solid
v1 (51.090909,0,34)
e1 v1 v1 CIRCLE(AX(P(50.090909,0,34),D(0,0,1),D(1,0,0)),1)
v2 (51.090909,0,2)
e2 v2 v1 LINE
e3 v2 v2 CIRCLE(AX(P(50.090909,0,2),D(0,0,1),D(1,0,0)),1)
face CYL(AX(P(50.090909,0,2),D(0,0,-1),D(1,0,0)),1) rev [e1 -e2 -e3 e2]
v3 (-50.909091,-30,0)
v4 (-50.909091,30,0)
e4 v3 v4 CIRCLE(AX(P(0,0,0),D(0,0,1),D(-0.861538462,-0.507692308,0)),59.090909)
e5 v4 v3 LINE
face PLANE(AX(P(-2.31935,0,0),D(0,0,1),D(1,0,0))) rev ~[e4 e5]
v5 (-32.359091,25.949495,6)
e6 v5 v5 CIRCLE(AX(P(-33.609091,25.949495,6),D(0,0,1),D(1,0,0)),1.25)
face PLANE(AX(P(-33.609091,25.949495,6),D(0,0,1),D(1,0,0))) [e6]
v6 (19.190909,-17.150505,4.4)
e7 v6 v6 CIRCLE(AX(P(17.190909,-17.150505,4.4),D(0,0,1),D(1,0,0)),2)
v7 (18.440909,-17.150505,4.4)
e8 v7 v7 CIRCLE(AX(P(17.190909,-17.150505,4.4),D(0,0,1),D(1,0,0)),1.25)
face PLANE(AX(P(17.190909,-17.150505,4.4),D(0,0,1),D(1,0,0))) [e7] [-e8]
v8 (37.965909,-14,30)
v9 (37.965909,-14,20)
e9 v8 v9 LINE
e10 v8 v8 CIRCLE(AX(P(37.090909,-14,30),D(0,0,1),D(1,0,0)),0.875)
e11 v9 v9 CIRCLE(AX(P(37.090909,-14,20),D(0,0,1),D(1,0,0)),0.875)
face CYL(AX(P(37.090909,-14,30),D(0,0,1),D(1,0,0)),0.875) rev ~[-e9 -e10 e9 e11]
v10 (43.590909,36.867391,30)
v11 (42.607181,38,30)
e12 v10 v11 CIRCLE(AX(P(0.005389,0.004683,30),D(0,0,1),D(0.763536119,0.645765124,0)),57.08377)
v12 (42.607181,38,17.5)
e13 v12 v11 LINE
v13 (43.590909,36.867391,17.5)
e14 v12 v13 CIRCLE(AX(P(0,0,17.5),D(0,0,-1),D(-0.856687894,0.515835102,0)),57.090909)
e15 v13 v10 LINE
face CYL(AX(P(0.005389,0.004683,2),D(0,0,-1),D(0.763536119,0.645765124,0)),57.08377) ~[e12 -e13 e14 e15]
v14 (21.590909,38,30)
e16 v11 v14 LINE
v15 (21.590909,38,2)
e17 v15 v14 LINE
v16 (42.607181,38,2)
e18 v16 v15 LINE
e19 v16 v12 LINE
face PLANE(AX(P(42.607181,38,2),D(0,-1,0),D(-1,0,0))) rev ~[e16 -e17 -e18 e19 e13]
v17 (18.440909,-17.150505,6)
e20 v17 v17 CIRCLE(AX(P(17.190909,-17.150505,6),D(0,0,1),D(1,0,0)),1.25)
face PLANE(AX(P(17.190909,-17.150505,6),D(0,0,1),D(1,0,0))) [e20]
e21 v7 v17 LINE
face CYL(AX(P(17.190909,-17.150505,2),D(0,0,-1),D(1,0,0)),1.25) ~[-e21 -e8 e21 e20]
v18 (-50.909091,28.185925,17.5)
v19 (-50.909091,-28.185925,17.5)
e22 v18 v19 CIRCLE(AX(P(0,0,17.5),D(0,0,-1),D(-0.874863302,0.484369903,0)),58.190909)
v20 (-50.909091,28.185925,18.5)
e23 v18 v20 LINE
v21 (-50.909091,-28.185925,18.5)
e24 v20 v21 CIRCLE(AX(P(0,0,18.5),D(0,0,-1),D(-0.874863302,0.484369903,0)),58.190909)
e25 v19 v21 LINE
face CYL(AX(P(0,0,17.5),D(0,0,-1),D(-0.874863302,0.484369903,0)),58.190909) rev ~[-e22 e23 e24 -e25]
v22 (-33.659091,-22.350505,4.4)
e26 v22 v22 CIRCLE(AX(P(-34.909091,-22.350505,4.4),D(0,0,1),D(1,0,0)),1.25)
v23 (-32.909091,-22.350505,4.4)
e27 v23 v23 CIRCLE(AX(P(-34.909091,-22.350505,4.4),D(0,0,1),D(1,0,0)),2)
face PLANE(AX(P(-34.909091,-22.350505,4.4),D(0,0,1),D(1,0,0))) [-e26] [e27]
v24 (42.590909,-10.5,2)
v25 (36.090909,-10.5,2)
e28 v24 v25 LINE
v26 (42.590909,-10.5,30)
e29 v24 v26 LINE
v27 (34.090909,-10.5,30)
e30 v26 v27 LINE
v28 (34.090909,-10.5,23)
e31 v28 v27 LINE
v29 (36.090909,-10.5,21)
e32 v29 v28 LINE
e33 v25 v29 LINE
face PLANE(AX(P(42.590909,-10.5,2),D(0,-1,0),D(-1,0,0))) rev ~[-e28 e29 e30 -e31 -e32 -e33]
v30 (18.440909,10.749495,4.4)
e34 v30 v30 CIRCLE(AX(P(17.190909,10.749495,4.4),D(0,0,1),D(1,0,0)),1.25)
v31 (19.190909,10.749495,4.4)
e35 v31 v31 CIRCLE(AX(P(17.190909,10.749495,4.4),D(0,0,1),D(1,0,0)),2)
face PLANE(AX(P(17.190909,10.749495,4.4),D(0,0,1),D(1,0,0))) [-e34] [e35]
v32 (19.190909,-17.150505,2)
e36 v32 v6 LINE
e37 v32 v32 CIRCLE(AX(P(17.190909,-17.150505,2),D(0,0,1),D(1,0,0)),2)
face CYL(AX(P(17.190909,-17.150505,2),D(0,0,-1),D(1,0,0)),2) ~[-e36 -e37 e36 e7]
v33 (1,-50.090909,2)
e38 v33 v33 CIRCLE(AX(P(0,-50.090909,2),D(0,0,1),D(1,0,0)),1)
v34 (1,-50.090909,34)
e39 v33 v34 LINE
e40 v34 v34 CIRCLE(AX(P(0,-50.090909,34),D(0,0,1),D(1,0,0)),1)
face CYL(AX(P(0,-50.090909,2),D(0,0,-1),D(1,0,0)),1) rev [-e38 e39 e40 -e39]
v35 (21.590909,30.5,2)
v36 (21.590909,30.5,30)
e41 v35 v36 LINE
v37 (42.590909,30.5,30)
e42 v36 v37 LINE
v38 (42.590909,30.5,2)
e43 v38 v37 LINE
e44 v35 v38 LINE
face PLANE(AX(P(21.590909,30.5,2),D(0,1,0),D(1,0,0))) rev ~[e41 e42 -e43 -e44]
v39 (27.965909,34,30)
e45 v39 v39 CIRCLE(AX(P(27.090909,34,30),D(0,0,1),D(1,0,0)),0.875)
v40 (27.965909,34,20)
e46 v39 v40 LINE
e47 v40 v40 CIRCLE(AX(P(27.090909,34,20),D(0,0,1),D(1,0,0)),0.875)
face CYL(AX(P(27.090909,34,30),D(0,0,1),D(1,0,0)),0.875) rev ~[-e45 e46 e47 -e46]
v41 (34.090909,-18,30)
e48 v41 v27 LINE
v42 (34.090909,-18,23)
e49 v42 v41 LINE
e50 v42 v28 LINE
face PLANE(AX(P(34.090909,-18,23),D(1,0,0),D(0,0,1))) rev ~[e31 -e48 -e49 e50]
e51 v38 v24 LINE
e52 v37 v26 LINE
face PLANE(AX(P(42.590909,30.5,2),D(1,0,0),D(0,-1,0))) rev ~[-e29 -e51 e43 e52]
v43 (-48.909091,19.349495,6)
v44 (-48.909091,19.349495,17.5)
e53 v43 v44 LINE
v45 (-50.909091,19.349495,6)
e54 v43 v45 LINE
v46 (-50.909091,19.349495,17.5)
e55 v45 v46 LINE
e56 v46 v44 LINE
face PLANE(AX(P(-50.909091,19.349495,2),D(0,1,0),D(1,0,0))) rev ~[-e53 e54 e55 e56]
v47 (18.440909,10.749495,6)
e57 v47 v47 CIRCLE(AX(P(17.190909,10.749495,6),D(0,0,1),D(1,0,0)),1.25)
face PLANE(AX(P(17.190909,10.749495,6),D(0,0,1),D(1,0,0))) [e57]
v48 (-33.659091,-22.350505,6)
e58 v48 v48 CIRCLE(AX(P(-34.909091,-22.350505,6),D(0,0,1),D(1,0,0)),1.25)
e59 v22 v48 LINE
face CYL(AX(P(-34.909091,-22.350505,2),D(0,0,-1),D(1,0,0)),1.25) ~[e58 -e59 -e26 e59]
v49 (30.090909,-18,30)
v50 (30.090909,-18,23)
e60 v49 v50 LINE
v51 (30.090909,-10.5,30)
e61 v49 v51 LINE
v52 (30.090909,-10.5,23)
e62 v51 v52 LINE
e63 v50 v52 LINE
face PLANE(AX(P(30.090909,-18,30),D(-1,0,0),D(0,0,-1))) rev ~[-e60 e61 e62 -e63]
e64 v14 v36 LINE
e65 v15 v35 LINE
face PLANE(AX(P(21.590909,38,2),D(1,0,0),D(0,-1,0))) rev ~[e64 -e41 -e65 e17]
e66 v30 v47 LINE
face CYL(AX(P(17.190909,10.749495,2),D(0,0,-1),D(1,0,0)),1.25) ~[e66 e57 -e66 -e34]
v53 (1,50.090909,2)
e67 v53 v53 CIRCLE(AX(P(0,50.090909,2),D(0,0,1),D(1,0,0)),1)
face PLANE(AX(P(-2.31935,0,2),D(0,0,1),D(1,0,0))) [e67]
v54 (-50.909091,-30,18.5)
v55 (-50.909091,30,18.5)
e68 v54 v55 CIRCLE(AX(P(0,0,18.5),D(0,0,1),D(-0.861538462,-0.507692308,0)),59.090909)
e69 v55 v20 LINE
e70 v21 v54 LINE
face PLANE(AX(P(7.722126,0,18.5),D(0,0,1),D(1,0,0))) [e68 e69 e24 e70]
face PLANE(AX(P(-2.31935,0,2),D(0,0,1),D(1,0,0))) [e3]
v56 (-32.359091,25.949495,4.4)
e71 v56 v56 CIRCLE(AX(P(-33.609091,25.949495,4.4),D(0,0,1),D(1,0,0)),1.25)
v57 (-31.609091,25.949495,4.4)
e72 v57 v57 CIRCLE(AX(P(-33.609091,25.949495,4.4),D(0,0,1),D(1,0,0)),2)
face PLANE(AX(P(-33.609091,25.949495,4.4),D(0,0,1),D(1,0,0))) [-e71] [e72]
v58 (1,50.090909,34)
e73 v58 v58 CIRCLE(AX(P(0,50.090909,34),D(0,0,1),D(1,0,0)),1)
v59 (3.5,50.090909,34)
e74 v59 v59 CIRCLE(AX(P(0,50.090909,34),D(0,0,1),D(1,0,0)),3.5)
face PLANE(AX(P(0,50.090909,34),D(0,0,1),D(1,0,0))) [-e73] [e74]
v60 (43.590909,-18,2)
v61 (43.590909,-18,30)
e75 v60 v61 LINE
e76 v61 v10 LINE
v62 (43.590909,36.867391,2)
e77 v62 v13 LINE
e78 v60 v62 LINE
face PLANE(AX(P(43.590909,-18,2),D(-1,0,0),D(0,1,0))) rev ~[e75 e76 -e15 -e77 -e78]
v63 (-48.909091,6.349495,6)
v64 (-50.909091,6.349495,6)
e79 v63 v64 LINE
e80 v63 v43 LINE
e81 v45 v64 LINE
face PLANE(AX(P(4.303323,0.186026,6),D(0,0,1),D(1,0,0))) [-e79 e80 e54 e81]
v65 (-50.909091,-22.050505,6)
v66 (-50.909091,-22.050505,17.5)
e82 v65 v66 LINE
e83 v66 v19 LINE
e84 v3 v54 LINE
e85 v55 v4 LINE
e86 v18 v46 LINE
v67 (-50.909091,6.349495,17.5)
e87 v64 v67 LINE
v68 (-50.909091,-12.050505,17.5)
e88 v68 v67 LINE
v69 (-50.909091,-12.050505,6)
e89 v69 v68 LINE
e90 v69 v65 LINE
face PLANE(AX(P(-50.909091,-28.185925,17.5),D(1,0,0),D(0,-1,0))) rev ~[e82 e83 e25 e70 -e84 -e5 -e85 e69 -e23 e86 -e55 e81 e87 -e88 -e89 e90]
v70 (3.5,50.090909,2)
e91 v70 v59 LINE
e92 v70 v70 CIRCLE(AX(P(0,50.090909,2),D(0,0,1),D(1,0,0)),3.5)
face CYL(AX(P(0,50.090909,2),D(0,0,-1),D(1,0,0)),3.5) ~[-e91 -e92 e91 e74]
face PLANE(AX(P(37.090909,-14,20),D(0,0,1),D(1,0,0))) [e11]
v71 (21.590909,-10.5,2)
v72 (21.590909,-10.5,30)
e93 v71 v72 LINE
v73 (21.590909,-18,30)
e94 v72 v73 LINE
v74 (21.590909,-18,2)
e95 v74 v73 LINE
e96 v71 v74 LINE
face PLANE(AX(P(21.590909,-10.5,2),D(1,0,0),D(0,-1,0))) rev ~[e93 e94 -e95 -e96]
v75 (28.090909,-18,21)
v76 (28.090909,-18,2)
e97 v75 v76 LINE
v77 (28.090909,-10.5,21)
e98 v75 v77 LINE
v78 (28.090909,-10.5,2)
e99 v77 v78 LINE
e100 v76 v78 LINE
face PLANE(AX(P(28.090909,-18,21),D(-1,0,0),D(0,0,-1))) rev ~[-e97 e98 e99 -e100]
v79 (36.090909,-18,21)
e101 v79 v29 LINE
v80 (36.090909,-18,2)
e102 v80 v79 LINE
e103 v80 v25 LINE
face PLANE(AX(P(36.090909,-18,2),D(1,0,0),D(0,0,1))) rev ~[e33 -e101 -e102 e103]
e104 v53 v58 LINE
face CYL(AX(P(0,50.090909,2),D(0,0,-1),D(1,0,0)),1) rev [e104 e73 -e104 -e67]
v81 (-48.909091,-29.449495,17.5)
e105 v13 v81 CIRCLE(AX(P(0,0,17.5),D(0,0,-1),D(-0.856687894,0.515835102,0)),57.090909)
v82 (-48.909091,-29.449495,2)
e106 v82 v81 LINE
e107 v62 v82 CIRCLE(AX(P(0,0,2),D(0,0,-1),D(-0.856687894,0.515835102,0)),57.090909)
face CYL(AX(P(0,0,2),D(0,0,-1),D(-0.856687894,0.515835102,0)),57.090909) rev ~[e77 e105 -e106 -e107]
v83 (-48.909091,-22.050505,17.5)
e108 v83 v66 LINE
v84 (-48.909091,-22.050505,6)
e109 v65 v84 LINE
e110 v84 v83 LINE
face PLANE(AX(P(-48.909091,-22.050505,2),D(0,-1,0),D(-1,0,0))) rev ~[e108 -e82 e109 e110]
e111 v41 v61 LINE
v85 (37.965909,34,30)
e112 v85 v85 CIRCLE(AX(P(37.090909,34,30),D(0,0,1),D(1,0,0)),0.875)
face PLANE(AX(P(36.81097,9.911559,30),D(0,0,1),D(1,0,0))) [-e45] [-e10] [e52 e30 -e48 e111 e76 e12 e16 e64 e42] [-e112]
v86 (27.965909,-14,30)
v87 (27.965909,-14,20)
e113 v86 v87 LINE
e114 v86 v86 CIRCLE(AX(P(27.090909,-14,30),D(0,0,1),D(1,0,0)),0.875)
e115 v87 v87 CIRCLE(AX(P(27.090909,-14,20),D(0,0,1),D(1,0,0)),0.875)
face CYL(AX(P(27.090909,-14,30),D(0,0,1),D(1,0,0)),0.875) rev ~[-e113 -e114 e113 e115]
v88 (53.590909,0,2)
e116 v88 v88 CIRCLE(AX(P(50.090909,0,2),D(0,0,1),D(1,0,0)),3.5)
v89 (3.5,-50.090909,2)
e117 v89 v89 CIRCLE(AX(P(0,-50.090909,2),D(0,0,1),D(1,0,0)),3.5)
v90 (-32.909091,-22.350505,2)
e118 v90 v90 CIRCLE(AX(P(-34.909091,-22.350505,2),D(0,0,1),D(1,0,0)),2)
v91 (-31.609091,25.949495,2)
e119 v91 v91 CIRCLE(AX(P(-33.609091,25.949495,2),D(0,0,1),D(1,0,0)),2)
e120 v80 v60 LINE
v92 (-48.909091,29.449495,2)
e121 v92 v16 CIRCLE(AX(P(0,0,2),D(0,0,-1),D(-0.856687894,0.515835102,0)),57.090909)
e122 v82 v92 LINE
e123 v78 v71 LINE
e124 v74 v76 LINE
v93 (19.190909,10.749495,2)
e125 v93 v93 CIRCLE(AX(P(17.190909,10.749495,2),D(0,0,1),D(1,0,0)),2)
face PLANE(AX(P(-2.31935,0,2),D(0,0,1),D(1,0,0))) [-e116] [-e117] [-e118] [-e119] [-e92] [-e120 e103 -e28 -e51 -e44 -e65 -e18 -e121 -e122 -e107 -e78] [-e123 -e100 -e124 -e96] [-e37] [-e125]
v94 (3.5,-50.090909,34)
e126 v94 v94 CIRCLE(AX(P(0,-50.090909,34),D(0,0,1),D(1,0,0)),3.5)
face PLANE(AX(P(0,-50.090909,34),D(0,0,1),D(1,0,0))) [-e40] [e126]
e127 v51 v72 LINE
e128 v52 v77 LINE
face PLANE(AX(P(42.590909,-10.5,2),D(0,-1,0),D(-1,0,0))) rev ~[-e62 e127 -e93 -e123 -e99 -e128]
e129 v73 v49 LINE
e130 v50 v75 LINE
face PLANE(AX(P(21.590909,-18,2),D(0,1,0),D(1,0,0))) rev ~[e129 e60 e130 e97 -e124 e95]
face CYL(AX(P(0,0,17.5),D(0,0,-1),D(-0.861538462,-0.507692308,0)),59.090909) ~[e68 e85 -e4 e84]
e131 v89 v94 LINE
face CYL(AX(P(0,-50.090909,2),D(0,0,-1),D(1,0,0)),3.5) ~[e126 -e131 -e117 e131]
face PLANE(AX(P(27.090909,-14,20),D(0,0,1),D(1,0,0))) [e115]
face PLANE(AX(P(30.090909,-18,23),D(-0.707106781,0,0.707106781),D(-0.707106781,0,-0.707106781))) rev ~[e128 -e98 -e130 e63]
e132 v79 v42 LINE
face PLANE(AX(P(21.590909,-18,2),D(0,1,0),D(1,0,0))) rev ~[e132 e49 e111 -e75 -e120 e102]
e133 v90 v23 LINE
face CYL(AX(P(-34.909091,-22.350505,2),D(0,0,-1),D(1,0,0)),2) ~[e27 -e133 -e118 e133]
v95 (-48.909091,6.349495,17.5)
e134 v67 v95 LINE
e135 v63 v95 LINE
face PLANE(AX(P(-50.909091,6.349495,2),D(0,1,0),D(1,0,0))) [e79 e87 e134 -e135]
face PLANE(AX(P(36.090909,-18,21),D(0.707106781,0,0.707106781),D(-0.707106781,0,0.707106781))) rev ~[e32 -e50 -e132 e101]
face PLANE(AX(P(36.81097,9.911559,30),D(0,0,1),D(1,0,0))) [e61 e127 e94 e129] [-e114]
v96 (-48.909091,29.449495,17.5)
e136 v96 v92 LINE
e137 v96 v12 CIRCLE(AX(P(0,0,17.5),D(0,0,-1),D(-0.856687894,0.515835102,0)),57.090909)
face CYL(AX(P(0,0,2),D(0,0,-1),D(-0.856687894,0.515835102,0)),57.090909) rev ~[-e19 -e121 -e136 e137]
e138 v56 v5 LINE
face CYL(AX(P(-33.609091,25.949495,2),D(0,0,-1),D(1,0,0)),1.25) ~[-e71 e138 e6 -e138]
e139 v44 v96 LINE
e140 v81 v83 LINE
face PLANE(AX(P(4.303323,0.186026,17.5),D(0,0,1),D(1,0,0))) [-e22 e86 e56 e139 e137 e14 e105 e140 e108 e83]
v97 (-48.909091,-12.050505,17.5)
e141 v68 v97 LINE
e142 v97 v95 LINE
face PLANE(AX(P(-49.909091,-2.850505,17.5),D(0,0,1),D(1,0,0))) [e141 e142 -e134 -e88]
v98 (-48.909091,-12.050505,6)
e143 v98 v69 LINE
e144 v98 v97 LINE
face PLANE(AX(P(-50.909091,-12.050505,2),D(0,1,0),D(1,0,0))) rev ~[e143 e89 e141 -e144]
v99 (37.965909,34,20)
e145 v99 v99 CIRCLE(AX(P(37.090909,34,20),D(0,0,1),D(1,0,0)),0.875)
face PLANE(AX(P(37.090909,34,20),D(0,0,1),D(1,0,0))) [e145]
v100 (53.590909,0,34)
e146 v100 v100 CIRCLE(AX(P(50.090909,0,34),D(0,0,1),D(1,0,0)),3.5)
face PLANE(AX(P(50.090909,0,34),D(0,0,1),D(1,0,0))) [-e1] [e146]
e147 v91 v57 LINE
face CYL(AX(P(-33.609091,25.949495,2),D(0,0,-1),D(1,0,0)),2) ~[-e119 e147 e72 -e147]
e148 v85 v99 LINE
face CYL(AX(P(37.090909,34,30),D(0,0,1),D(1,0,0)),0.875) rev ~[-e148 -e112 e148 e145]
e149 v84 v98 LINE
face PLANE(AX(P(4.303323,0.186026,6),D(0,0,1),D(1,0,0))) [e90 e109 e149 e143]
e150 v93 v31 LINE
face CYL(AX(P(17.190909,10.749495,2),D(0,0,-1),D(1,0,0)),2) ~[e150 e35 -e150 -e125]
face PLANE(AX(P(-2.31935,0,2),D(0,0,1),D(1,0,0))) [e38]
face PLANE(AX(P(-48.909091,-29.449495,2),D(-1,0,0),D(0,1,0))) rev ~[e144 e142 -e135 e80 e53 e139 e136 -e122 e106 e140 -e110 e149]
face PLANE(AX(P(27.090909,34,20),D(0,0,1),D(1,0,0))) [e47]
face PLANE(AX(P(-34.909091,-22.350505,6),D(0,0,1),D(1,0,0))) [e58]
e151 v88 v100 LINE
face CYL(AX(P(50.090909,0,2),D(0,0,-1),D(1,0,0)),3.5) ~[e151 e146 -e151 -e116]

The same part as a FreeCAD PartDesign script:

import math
import FreeCAD as App
import Part
import Sketcher
from FreeCAD import Vector

doc = App.newDocument("Part")
body = doc.addObject("PartDesign::Body", "Body")

sketch1 = body.newObject("Sketcher::SketchObject", "Sketch")
sketch1.AttachmentSupport = (doc.getObject("XY_Plane"), [""])
sketch1.MapMode = "FlatFace"
sketch1.addGeometry(Part.LineSegment(Vector(-50.909091, 30, 0), Vector(-50.909091, -30, 0)), False)
sketch1.addGeometry(Part.ArcOfCircle(Part.Circle(Vector(0, 0, 0), Vector(0, 0, 1), 59.090909), math.radians(-149.489763), math.radians(149.489763)), False)
sketch1.addConstraint(Sketcher.Constraint("Coincident", 0, 1, 1, 2))
sketch1.addConstraint(Sketcher.Constraint("Coincident", 1, 1, 0, 2))
sketch1.addConstraint(Sketcher.Constraint("Vertical", 0))
sketch1.addConstraint(Sketcher.Constraint("Coincident", 1, 3, -1, 1))
sketch1.addConstraint(Sketcher.Constraint("DistanceY", 0, 2, 0, 1, 60.0))
sketch1.addConstraint(Sketcher.Constraint("Radius", 1, 59.090909))
pad1 = body.newObject("PartDesign::Pad", "Pad")
pad1.Profile = sketch1
pad1.Length = 2

sketch2 = body.newObject("Sketcher::SketchObject", "Sketch001")
sketch2.AttachmentSupport = (doc.getObject("XY_Plane"), [""])
sketch2.MapMode = "FlatFace"
sketch2.AttachmentOffset = App.Placement(Vector(0, 0, 2), App.Rotation())
sketch2.addGeometry(Part.ArcOfCircle(Part.Circle(Vector(0, 0, 0), Vector(0, 0, 1), 59.090909), math.radians(-149.489763), math.radians(149.489763)), False)
sketch2.addGeometry(Part.LineSegment(Vector(-50.909091, 30, 0), Vector(-50.909091, -30, 0)), False)
sketch2.addGeometry(Part.ArcOfCircle(Part.Circle(Vector(0, 0, 0), Vector(0, 0, 1), 57.090909), math.radians(-148.946709), math.radians(148.946709)), False)
sketch2.addGeometry(Part.LineSegment(Vector(-48.909091, -29.449495, 0), Vector(-48.909091, 29.449495, 0)), False)
sketch2.addConstraint(Sketcher.Constraint("Coincident", 0, 1, 1, 2))
sketch2.addConstraint(Sketcher.Constraint("Coincident", 1, 1, 0, 2))
sketch2.addConstraint(Sketcher.Constraint("Coincident", 2, 1, 3, 1))
sketch2.addConstraint(Sketcher.Constraint("Coincident", 3, 2, 2, 2))
sketch2.addConstraint(Sketcher.Constraint("Vertical", 1))
sketch2.addConstraint(Sketcher.Constraint("Vertical", 3))
sketch2.addConstraint(Sketcher.Constraint("Coincident", 0, 3, -1, 1))
sketch2.addConstraint(Sketcher.Constraint("Coincident", 2, 3, -1, 1))
sketch2.addConstraint(Sketcher.Constraint("DistanceY", 1, 2, 1, 1, 60.0))
sketch2.addConstraint(Sketcher.Constraint("DistanceX", 0, 1, 2, 1, 2.0))
sketch2.addConstraint(Sketcher.Constraint("Radius", 0, 59.090909))
sketch2.addConstraint(Sketcher.Constraint("Radius", 2, 57.090909))
pad2 = body.newObject("PartDesign::Pad", "Pad001")
pad2.Profile = sketch2
pad2.Length = 4

sketch3 = body.newObject("Sketcher::SketchObject", "Sketch002")
sketch3.AttachmentSupport = (doc.getObject("XY_Plane"), [""])
sketch3.MapMode = "FlatFace"
sketch3.AttachmentOffset = App.Placement(Vector(0, 0, 2), App.Rotation())
sketch3.addGeometry(Part.Circle(Vector(-33.609091, 25.949495, 0), Vector(0, 0, 1), 1.25), False)
sketch3.addGeometry(Part.Circle(Vector(-34.909091, -22.350505, 0), Vector(0, 0, 1), 1.25), False)
sketch3.addGeometry(Part.Circle(Vector(17.190909, 10.749495, 0), Vector(0, 0, 1), 1.25), False)
sketch3.addGeometry(Part.Circle(Vector(17.190909, -17.150505, 0), Vector(0, 0, 1), 1.25), False)
sketch3.addConstraint(Sketcher.Constraint("Equal", 0, 1))
sketch3.addConstraint(Sketcher.Constraint("Equal", 1, 2))
sketch3.addConstraint(Sketcher.Constraint("Equal", 2, 3))
sketch3.addConstraint(Sketcher.Constraint("Vertical", 2, 3, 3, 3))
sketch3.addConstraint(Sketcher.Constraint("Diameter", 0, 2.5))
sketch3.addConstraint(Sketcher.Constraint("DistanceX", 1, 3, 0, 3, 1.3))
sketch3.addConstraint(Sketcher.Constraint("DistanceY", 1, 3, 0, 3, 48.3))
sketch3.addConstraint(Sketcher.Constraint("DistanceX", 0, 3, 2, 3, 50.8))
sketch3.addConstraint(Sketcher.Constraint("DistanceY", 2, 3, 0, 3, 15.2))
sketch3.addConstraint(Sketcher.Constraint("DistanceY", 3, 3, 2, 3, 27.9))
sketch3.addConstraint(Sketcher.Constraint("DistanceX", 0, 3, -1, 1, 33.609091))
sketch3.addConstraint(Sketcher.Constraint("DistanceY", -1, 1, 0, 3, 25.949495))
pad3 = body.newObject("PartDesign::Pad", "Pad002")
pad3.Profile = sketch3
pad3.Length = 4

sketch4 = body.newObject("Sketcher::SketchObject", "Sketch003")
sketch4.AttachmentSupport = (doc.getObject("XY_Plane"), [""])
sketch4.MapMode = "FlatFace"
sketch4.AttachmentOffset = App.Placement(Vector(0, 0, 2), App.Rotation())
sketch4.addGeometry(Part.Circle(Vector(-33.609091, 25.949495, 0), Vector(0, 0, 1), 2), False)
sketch4.addGeometry(Part.Circle(Vector(-33.609091, 25.949495, 0), Vector(0, 0, 1), 1.25), False)
sketch4.addGeometry(Part.Circle(Vector(-34.909091, -22.350505, 0), Vector(0, 0, 1), 2), False)
sketch4.addGeometry(Part.Circle(Vector(-34.909091, -22.350505, 0), Vector(0, 0, 1), 1.25), False)
sketch4.addGeometry(Part.Circle(Vector(17.190909, -17.150505, 0), Vector(0, 0, 1), 2), False)
sketch4.addGeometry(Part.Circle(Vector(17.190909, -17.150505, 0), Vector(0, 0, 1), 1.25), False)
sketch4.addGeometry(Part.Circle(Vector(17.190909, 10.749495, 0), Vector(0, 0, 1), 2), False)
sketch4.addGeometry(Part.Circle(Vector(17.190909, 10.749495, 0), Vector(0, 0, 1), 1.25), False)
sketch4.addConstraint(Sketcher.Constraint("Coincident", 1, 3, 0, 3))
sketch4.addConstraint(Sketcher.Constraint("Coincident", 3, 3, 2, 3))
sketch4.addConstraint(Sketcher.Constraint("Coincident", 5, 3, 4, 3))
sketch4.addConstraint(Sketcher.Constraint("Coincident", 7, 3, 6, 3))
sketch4.addConstraint(Sketcher.Constraint("Equal", 0, 2))
sketch4.addConstraint(Sketcher.Constraint("Equal", 1, 3))
sketch4.addConstraint(Sketcher.Constraint("Equal", 2, 4))
sketch4.addConstraint(Sketcher.Constraint("Equal", 3, 5))
sketch4.addConstraint(Sketcher.Constraint("Equal", 4, 6))
sketch4.addConstraint(Sketcher.Constraint("Equal", 5, 7))
sketch4.addConstraint(Sketcher.Constraint("Vertical", 5, 3, 6, 3))
sketch4.addConstraint(Sketcher.Constraint("Diameter", 0, 4.0))
sketch4.addConstraint(Sketcher.Constraint("Diameter", 1, 2.5))
sketch4.addConstraint(Sketcher.Constraint("DistanceX", 2, 3, 0, 3, 1.3))
sketch4.addConstraint(Sketcher.Constraint("DistanceY", 2, 3, 0, 3, 48.3))
sketch4.addConstraint(Sketcher.Constraint("DistanceX", 2, 3, 4, 3, 52.1))
sketch4.addConstraint(Sketcher.Constraint("DistanceY", 2, 3, 4, 3, 5.2))
sketch4.addConstraint(Sketcher.Constraint("DistanceY", 4, 3, 6, 3, 27.9))
sketch4.addConstraint(Sketcher.Constraint("DistanceX", 0, 3, -1, 1, 33.609091))
sketch4.addConstraint(Sketcher.Constraint("DistanceY", -1, 1, 0, 3, 25.949495))
pad4 = body.newObject("PartDesign::Pad", "Pad003")
pad4.Profile = sketch4
pad4.Length = 2.4

sketch5 = body.newObject("Sketcher::SketchObject", "Sketch004")
sketch5.AttachmentSupport = (doc.getObject("XY_Plane"), [""])
sketch5.MapMode = "FlatFace"
sketch5.AttachmentOffset = App.Placement(Vector(0, 0, 2), App.Rotation())
sketch5.addGeometry(Part.ArcOfCircle(Part.Circle(Vector(0, 0, 0), Vector(0, 0, 1), 57.090909), math.radians(-148.946709), math.radians(148.946709)), False)
sketch5.addGeometry(Part.LineSegment(Vector(-48.909091, -29.449495, 0), Vector(-48.909091, -22.050505, 0)), False)
sketch5.addGeometry(Part.LineSegment(Vector(-48.909091, -22.050505, 0), Vector(-50.909091, -22.050505, 0)), False)
sketch5.addGeometry(Part.LineSegment(Vector(-50.909091, -22.050505, 0), Vector(-50.909091, -30, 0)), False)
sketch5.addGeometry(Part.ArcOfCircle(Part.Circle(Vector(0, 0, 0), Vector(0, 0, 1), 59.090909), math.radians(-149.489763), math.radians(149.489763)), False)
sketch5.addGeometry(Part.LineSegment(Vector(-50.909091, 30, 0), Vector(-50.909091, 19.349495, 0)), False)
sketch5.addGeometry(Part.LineSegment(Vector(-50.909091, 19.349495, 0), Vector(-48.909091, 19.349495, 0)), False)
sketch5.addGeometry(Part.LineSegment(Vector(-48.909091, 19.349495, 0), Vector(-48.909091, 29.449495, 0)), False)
sketch5.addGeometry(Part.LineSegment(Vector(-50.909091, 6.349495, 0), Vector(-50.909091, -12.050505, 0)), False)
sketch5.addGeometry(Part.LineSegment(Vector(-50.909091, -12.050505, 0), Vector(-48.909091, -12.050505, 0)), False)
sketch5.addGeometry(Part.LineSegment(Vector(-48.909091, -12.050505, 0), Vector(-48.909091, 6.349495, 0)), False)
sketch5.addGeometry(Part.LineSegment(Vector(-48.909091, 6.349495, 0), Vector(-50.909091, 6.349495, 0)), False)
sketch5.addConstraint(Sketcher.Constraint("Coincident", 0, 1, 1, 1))
sketch5.addConstraint(Sketcher.Constraint("Coincident", 1, 2, 2, 1))
sketch5.addConstraint(Sketcher.Constraint("Coincident", 2, 2, 3, 1))
sketch5.addConstraint(Sketcher.Constraint("Coincident", 3, 2, 4, 1))
sketch5.addConstraint(Sketcher.Constraint("Coincident", 4, 2, 5, 1))
sketch5.addConstraint(Sketcher.Constraint("Coincident", 5, 2, 6, 1))
sketch5.addConstraint(Sketcher.Constraint("Coincident", 6, 2, 7, 1))
sketch5.addConstraint(Sketcher.Constraint("Coincident", 7, 2, 0, 2))
sketch5.addConstraint(Sketcher.Constraint("Coincident", 8, 2, 9, 1))
sketch5.addConstraint(Sketcher.Constraint("Coincident", 9, 2, 10, 1))
sketch5.addConstraint(Sketcher.Constraint("Coincident", 10, 2, 11, 1))
sketch5.addConstraint(Sketcher.Constraint("Coincident", 11, 2, 8, 1))
sketch5.addConstraint(Sketcher.Constraint("Vertical", 1))
sketch5.addConstraint(Sketcher.Constraint("Horizontal", 2))
sketch5.addConstraint(Sketcher.Constraint("Vertical", 3))
sketch5.addConstraint(Sketcher.Constraint("Vertical", 5))
sketch5.addConstraint(Sketcher.Constraint("Horizontal", 6))
sketch5.addConstraint(Sketcher.Constraint("Vertical", 7))
sketch5.addConstraint(Sketcher.Constraint("Vertical", 8))
sketch5.addConstraint(Sketcher.Constraint("Horizontal", 9))
sketch5.addConstraint(Sketcher.Constraint("Vertical", 10))
sketch5.addConstraint(Sketcher.Constraint("Horizontal", 11))
sketch5.addConstraint(Sketcher.Constraint("Coincident", 0, 3, -1, 1))
sketch5.addConstraint(Sketcher.Constraint("Coincident", 4, 3, -1, 1))
sketch5.addConstraint(Sketcher.Constraint("Vertical", 3, 2, 4, 2))
sketch5.addConstraint(Sketcher.Constraint("Vertical", 1, 2, 6, 2))
sketch5.addConstraint(Sketcher.Constraint("Vertical", 5, 2, 8, 2))
sketch5.addConstraint(Sketcher.Constraint("Vertical", 7, 2, 9, 2))
sketch5.addConstraint(Sketcher.Constraint("DistanceX", 2, 2, 2, 1, 2.0))
sketch5.addConstraint(Sketcher.Constraint("DistanceY", 7, 1, 7, 2, 10.1))
sketch5.addConstraint(Sketcher.Constraint("DistanceY", 8, 2, 8, 1, 18.4))
sketch5.addConstraint(Sketcher.Constraint("DistanceY", 3, 2, -1, 1, 30.0))
sketch5.addConstraint(Sketcher.Constraint("DistanceY", 2, 2, 8, 2, 10.0))
sketch5.addConstraint(Sketcher.Constraint("DistanceY", 10, 2, 6, 2, 13.0))
sketch5.addConstraint(Sketcher.Constraint("Radius", 0, 57.090909))
sketch5.addConstraint(Sketcher.Constraint("Radius", 4, 59.090909))
pad5 = body.newObject("PartDesign::Pad", "Pad004")
pad5.Profile = sketch5
pad5.Length = 15.5

sketch6 = body.newObject("Sketcher::SketchObject", "Sketch005")
sketch6.AttachmentSupport = (doc.getObject("XY_Plane"), [""])
sketch6.MapMode = "FlatFace"
sketch6.AttachmentOffset = App.Placement(Vector(0, 0, 2), App.Rotation())
sketch6.addGeometry(Part.Circle(Vector(0, 50.090909, 0), Vector(0, 0, 1), 3.5), False)
sketch6.addGeometry(Part.Circle(Vector(0, 50.090909, 0), Vector(0, 0, 1), 1), False)
sketch6.addGeometry(Part.Circle(Vector(50.090909, 0, 0), Vector(0, 0, 1), 3.5), False)
sketch6.addGeometry(Part.Circle(Vector(50.090909, 0, 0), Vector(0, 0, 1), 1), False)
sketch6.addGeometry(Part.Circle(Vector(0, -50.090909, 0), Vector(0, 0, 1), 3.5), False)
sketch6.addGeometry(Part.Circle(Vector(0, -50.090909, 0), Vector(0, 0, 1), 1), False)
sketch6.addConstraint(Sketcher.Constraint("Coincident", 1, 3, 0, 3))
sketch6.addConstraint(Sketcher.Constraint("Coincident", 3, 3, 2, 3))
sketch6.addConstraint(Sketcher.Constraint("Coincident", 5, 3, 4, 3))
sketch6.addConstraint(Sketcher.Constraint("Equal", 0, 2))
sketch6.addConstraint(Sketcher.Constraint("Equal", 1, 3))
sketch6.addConstraint(Sketcher.Constraint("Equal", 2, 4))
sketch6.addConstraint(Sketcher.Constraint("Equal", 3, 5))
sketch6.addConstraint(Sketcher.Constraint("Symmetric", 0, 3, 4, 3, -1, 1))
sketch6.addConstraint(Sketcher.Constraint("PointOnObject", 0, 3, -2))
sketch6.addConstraint(Sketcher.Constraint("PointOnObject", 2, 3, -1))
sketch6.addConstraint(Sketcher.Constraint("Diameter", 0, 7.0))
sketch6.addConstraint(Sketcher.Constraint("Diameter", 1, 2.0))
sketch6.addConstraint(Sketcher.Constraint("DistanceY", -1, 1, 0, 3, 50.090909))
sketch6.addConstraint(Sketcher.Constraint("DistanceX", -1, 1, 2, 3, 50.090909))
pad6 = body.newObject("PartDesign::Pad", "Pad005")
pad6.Profile = sketch6
pad6.Length = 32

sketch7 = body.newObject("Sketcher::SketchObject", "Sketch006")
sketch7.AttachmentSupport = (doc.getObject("XY_Plane"), [""])
sketch7.MapMode = "FlatFace"
sketch7.AttachmentOffset = App.Placement(Vector(0, 0, 2), App.Rotation())
sketch7.addGeometry(Part.LineSegment(Vector(42.607181, 38, 0), Vector(21.590909, 38, 0)), False)
sketch7.addGeometry(Part.LineSegment(Vector(21.590909, 38, 0), Vector(21.590909, 30.5, 0)), False)
sketch7.addGeometry(Part.LineSegment(Vector(21.590909, 30.5, 0), Vector(42.590909, 30.5, 0)), False)
sketch7.addGeometry(Part.LineSegment(Vector(42.590909, 30.5, 0), Vector(42.590909, -10.5, 0)), False)
sketch7.addGeometry(Part.LineSegment(Vector(42.590909, -10.5, 0), Vector(21.590909, -10.5, 0)), False)
sketch7.addGeometry(Part.LineSegment(Vector(21.590909, -10.5, 0), Vector(21.590909, -18, 0)), False)
sketch7.addGeometry(Part.LineSegment(Vector(21.590909, -18, 0), Vector(43.590909, -18, 0)), False)
sketch7.addGeometry(Part.LineSegment(Vector(43.590909, -18, 0), Vector(43.590909, 36.867391, 0)), False)
sketch7.addGeometry(Part.ArcOfCircle(Part.Circle(Vector(0.005389, 0.004683, 0), Vector(0, 0, 1), 57.08377), math.radians(40.223066), math.radians(41.728856)), False)
sketch7.addConstraint(Sketcher.Constraint("Coincident", 0, 2, 1, 1))
sketch7.addConstraint(Sketcher.Constraint("Coincident", 1, 2, 2, 1))
sketch7.addConstraint(Sketcher.Constraint("Coincident", 2, 2, 3, 1))
sketch7.addConstraint(Sketcher.Constraint("Coincident", 3, 2, 4, 1))
sketch7.addConstraint(Sketcher.Constraint("Coincident", 4, 2, 5, 1))
sketch7.addConstraint(Sketcher.Constraint("Coincident", 5, 2, 6, 1))
sketch7.addConstraint(Sketcher.Constraint("Coincident", 6, 2, 7, 1))
sketch7.addConstraint(Sketcher.Constraint("Coincident", 7, 2, 8, 1))
sketch7.addConstraint(Sketcher.Constraint("Coincident", 8, 2, 0, 1))
sketch7.addConstraint(Sketcher.Constraint("Horizontal", 0))
sketch7.addConstraint(Sketcher.Constraint("Vertical", 1))
sketch7.addConstraint(Sketcher.Constraint("Horizontal", 2))
sketch7.addConstraint(Sketcher.Constraint("Vertical", 3))
sketch7.addConstraint(Sketcher.Constraint("Horizontal", 4))
sketch7.addConstraint(Sketcher.Constraint("Vertical", 5))
sketch7.addConstraint(Sketcher.Constraint("Horizontal", 6))
sketch7.addConstraint(Sketcher.Constraint("Vertical", 7))
sketch7.addConstraint(Sketcher.Constraint("Vertical", 1, 2, 4, 2))
sketch7.addConstraint(Sketcher.Constraint("Equal", 1, 5))
sketch7.addConstraint(Sketcher.Constraint("DistanceX", 2, 1, 2, 2, 21.0))
sketch7.addConstraint(Sketcher.Constraint("DistanceX", 6, 1, 6, 2, 22.0))
sketch7.addConstraint(Sketcher.Constraint("DistanceY", 3, 2, 3, 1, 41.0))
sketch7.addConstraint(Sketcher.Constraint("DistanceY", 1, 2, 1, 1, 7.5))
sketch7.addConstraint(Sketcher.Constraint("DistanceY", -1, 1, 0, 2, 38.0))
sketch7.addConstraint(Sketcher.Constraint("Radius", 8, 57.08377))
sketch7.addConstraint(Sketcher.Constraint("DistanceX", 0, 2, 0, 1, 21.016272))
sketch7.addConstraint(Sketcher.Constraint("DistanceY", 7, 1, 7, 2, 54.867391))
sketch7.addConstraint(Sketcher.Constraint("DistanceX", -1, 1, 8, 3, 0.005389))
pad7 = body.newObject("PartDesign::Pad", "Pad006")
pad7.Profile = sketch7
pad7.Length = 28

sketch8 = body.newObject("Sketcher::SketchObject", "Sketch007")
sketch8.AttachmentSupport = (doc.getObject("XY_Plane"), [""])
sketch8.MapMode = "FlatFace"
sketch8.AttachmentOffset = App.Placement(Vector(0, 0, 30), App.Rotation())
sketch8.addGeometry(Part.Circle(Vector(27.090909, 34, 0), Vector(0, 0, 1), 0.875), False)
sketch8.addGeometry(Part.Circle(Vector(37.090909, 34, 0), Vector(0, 0, 1), 0.875), False)
sketch8.addGeometry(Part.Circle(Vector(27.090909, -14, 0), Vector(0, 0, 1), 0.875), False)
sketch8.addGeometry(Part.Circle(Vector(37.090909, -14, 0), Vector(0, 0, 1), 0.875), False)
sketch8.addConstraint(Sketcher.Constraint("Equal", 0, 1))
sketch8.addConstraint(Sketcher.Constraint("Equal", 1, 2))
sketch8.addConstraint(Sketcher.Constraint("Equal", 2, 3))
sketch8.addConstraint(Sketcher.Constraint("Horizontal", 0, 3, 1, 3))
sketch8.addConstraint(Sketcher.Constraint("Horizontal", 2, 3, 3, 3))
sketch8.addConstraint(Sketcher.Constraint("Vertical", 0, 3, 2, 3))
sketch8.addConstraint(Sketcher.Constraint("Vertical", 1, 3, 3, 3))
sketch8.addConstraint(Sketcher.Constraint("Diameter", 0, 1.75))
sketch8.addConstraint(Sketcher.Constraint("DistanceY", -1, 1, 0, 3, 34.0))
sketch8.addConstraint(Sketcher.Constraint("DistanceY", 2, 3, -1, 1, 14.0))
sketch8.addConstraint(Sketcher.Constraint("DistanceX", 0, 3, 1, 3, 10.0))
sketch8.addConstraint(Sketcher.Constraint("DistanceX", -1, 1, 0, 3, 27.090909))
pocket1 = body.newObject("PartDesign::Pocket", "Pocket")
pocket1.Profile = sketch8
pocket1.Length = 10

sketch9 = body.newObject("Sketcher::SketchObject", "Sketch008")
sketch9.AttachmentSupport = (doc.getObject("XZ_Plane"), [""])
sketch9.MapMode = "FlatFace"
sketch9.AttachmentOffset = App.Placement(Vector(0, 0, 18), App.Rotation())
sketch9.addGeometry(Part.LineSegment(Vector(34.090909, 30, 0), Vector(30.090909, 30, 0)), False)
sketch9.addGeometry(Part.LineSegment(Vector(30.090909, 30, 0), Vector(30.090909, 23, 0)), False)
sketch9.addGeometry(Part.LineSegment(Vector(30.090909, 23, 0), Vector(28.090909, 21, 0)), False)
sketch9.addGeometry(Part.LineSegment(Vector(28.090909, 21, 0), Vector(28.090909, 2, 0)), False)
sketch9.addGeometry(Part.LineSegment(Vector(28.090909, 2, 0), Vector(36.090909, 2, 0)), False)
sketch9.addGeometry(Part.LineSegment(Vector(36.090909, 2, 0), Vector(36.090909, 21, 0)), False)
sketch9.addGeometry(Part.LineSegment(Vector(36.090909, 21, 0), Vector(34.090909, 23, 0)), False)
sketch9.addGeometry(Part.LineSegment(Vector(34.090909, 23, 0), Vector(34.090909, 30, 0)), False)
sketch9.addConstraint(Sketcher.Constraint("Coincident", 0, 2, 1, 1))
sketch9.addConstraint(Sketcher.Constraint("Coincident", 1, 2, 2, 1))
sketch9.addConstraint(Sketcher.Constraint("Coincident", 2, 2, 3, 1))
sketch9.addConstraint(Sketcher.Constraint("Coincident", 3, 2, 4, 1))
sketch9.addConstraint(Sketcher.Constraint("Coincident", 4, 2, 5, 1))
sketch9.addConstraint(Sketcher.Constraint("Coincident", 5, 2, 6, 1))
sketch9.addConstraint(Sketcher.Constraint("Coincident", 6, 2, 7, 1))
sketch9.addConstraint(Sketcher.Constraint("Coincident", 7, 2, 0, 1))
sketch9.addConstraint(Sketcher.Constraint("Horizontal", 0))
sketch9.addConstraint(Sketcher.Constraint("Vertical", 1))
sketch9.addConstraint(Sketcher.Constraint("Vertical", 3))
sketch9.addConstraint(Sketcher.Constraint("Horizontal", 4))
sketch9.addConstraint(Sketcher.Constraint("Vertical", 5))
sketch9.addConstraint(Sketcher.Constraint("Vertical", 7))
sketch9.addConstraint(Sketcher.Constraint("Perpendicular", 2, 6))
sketch9.addConstraint(Sketcher.Constraint("Horizontal", 2, 2, 5, 2))
sketch9.addConstraint(Sketcher.Constraint("Horizontal", 1, 2, 6, 2))
sketch9.addConstraint(Sketcher.Constraint("Equal", 2, 6))
sketch9.addConstraint(Sketcher.Constraint("DistanceX", 0, 2, 0, 1, 4.0))
sketch9.addConstraint(Sketcher.Constraint("DistanceX", 4, 1, 4, 2, 8.0))
sketch9.addConstraint(Sketcher.Constraint("DistanceY", 1, 2, 1, 1, 7.0))
sketch9.addConstraint(Sketcher.Constraint("DistanceY", 3, 2, 3, 1, 19.0))
sketch9.addConstraint(Sketcher.Constraint("DistanceY", -1, 1, 0, 2, 30.0))
sketch9.addConstraint(Sketcher.Constraint("DistanceX", -1, 1, 0, 2, 30.090909))
pocket2 = body.newObject("PartDesign::Pocket", "Pocket001")
pocket2.Profile = sketch9
pocket2.Length = 25

sketch10 = body.newObject("Sketcher::SketchObject", "Sketch009")
sketch10.AttachmentSupport = (doc.getObject("XY_Plane"), [""])
sketch10.MapMode = "FlatFace"
sketch10.AttachmentOffset = App.Placement(Vector(0, 0, 17.5), App.Rotation())
sketch10.addGeometry(Part.LineSegment(Vector(-50.909091, -28.185925, 0), Vector(-50.909091, -30, 0)), False)
sketch10.addGeometry(Part.ArcOfCircle(Part.Circle(Vector(0, 0, 0), Vector(0, 0, 1), 59.090909), math.radians(-149.489763), math.radians(149.489763)), False)
sketch10.addGeometry(Part.LineSegment(Vector(-50.909091, 30, 0), Vector(-50.909091, 28.185925, 0)), False)
sketch10.addGeometry(Part.ArcOfCircle(Part.Circle(Vector(0, 0, 0), Vector(0, 0, 1), 58.190909), math.radians(-151.028802), math.radians(151.028802)), False)
sketch10.addConstraint(Sketcher.Constraint("Coincident", 0, 2, 1, 1))
sketch10.addConstraint(Sketcher.Constraint("Coincident", 1, 2, 2, 1))
sketch10.addConstraint(Sketcher.Constraint("Coincident", 2, 2, 3, 2))
sketch10.addConstraint(Sketcher.Constraint("Coincident", 3, 1, 0, 1))
sketch10.addConstraint(Sketcher.Constraint("Vertical", 0))
sketch10.addConstraint(Sketcher.Constraint("Vertical", 2))
sketch10.addConstraint(Sketcher.Constraint("Coincident", 1, 3, -1, 1))
sketch10.addConstraint(Sketcher.Constraint("Coincident", 3, 3, -1, 1))
sketch10.addConstraint(Sketcher.Constraint("Vertical", 0, 2, 1, 2))
sketch10.addConstraint(Sketcher.Constraint("DistanceY", 0, 2, -1, 1, 30.0))
sketch10.addConstraint(Sketcher.Constraint("Radius", 1, 59.090909))
sketch10.addConstraint(Sketcher.Constraint("Radius", 3, 58.190909))
pad8 = body.newObject("PartDesign::Pad", "Pad007")
pad8.Profile = sketch10
pad8.Length = 1

doc.recompute()
